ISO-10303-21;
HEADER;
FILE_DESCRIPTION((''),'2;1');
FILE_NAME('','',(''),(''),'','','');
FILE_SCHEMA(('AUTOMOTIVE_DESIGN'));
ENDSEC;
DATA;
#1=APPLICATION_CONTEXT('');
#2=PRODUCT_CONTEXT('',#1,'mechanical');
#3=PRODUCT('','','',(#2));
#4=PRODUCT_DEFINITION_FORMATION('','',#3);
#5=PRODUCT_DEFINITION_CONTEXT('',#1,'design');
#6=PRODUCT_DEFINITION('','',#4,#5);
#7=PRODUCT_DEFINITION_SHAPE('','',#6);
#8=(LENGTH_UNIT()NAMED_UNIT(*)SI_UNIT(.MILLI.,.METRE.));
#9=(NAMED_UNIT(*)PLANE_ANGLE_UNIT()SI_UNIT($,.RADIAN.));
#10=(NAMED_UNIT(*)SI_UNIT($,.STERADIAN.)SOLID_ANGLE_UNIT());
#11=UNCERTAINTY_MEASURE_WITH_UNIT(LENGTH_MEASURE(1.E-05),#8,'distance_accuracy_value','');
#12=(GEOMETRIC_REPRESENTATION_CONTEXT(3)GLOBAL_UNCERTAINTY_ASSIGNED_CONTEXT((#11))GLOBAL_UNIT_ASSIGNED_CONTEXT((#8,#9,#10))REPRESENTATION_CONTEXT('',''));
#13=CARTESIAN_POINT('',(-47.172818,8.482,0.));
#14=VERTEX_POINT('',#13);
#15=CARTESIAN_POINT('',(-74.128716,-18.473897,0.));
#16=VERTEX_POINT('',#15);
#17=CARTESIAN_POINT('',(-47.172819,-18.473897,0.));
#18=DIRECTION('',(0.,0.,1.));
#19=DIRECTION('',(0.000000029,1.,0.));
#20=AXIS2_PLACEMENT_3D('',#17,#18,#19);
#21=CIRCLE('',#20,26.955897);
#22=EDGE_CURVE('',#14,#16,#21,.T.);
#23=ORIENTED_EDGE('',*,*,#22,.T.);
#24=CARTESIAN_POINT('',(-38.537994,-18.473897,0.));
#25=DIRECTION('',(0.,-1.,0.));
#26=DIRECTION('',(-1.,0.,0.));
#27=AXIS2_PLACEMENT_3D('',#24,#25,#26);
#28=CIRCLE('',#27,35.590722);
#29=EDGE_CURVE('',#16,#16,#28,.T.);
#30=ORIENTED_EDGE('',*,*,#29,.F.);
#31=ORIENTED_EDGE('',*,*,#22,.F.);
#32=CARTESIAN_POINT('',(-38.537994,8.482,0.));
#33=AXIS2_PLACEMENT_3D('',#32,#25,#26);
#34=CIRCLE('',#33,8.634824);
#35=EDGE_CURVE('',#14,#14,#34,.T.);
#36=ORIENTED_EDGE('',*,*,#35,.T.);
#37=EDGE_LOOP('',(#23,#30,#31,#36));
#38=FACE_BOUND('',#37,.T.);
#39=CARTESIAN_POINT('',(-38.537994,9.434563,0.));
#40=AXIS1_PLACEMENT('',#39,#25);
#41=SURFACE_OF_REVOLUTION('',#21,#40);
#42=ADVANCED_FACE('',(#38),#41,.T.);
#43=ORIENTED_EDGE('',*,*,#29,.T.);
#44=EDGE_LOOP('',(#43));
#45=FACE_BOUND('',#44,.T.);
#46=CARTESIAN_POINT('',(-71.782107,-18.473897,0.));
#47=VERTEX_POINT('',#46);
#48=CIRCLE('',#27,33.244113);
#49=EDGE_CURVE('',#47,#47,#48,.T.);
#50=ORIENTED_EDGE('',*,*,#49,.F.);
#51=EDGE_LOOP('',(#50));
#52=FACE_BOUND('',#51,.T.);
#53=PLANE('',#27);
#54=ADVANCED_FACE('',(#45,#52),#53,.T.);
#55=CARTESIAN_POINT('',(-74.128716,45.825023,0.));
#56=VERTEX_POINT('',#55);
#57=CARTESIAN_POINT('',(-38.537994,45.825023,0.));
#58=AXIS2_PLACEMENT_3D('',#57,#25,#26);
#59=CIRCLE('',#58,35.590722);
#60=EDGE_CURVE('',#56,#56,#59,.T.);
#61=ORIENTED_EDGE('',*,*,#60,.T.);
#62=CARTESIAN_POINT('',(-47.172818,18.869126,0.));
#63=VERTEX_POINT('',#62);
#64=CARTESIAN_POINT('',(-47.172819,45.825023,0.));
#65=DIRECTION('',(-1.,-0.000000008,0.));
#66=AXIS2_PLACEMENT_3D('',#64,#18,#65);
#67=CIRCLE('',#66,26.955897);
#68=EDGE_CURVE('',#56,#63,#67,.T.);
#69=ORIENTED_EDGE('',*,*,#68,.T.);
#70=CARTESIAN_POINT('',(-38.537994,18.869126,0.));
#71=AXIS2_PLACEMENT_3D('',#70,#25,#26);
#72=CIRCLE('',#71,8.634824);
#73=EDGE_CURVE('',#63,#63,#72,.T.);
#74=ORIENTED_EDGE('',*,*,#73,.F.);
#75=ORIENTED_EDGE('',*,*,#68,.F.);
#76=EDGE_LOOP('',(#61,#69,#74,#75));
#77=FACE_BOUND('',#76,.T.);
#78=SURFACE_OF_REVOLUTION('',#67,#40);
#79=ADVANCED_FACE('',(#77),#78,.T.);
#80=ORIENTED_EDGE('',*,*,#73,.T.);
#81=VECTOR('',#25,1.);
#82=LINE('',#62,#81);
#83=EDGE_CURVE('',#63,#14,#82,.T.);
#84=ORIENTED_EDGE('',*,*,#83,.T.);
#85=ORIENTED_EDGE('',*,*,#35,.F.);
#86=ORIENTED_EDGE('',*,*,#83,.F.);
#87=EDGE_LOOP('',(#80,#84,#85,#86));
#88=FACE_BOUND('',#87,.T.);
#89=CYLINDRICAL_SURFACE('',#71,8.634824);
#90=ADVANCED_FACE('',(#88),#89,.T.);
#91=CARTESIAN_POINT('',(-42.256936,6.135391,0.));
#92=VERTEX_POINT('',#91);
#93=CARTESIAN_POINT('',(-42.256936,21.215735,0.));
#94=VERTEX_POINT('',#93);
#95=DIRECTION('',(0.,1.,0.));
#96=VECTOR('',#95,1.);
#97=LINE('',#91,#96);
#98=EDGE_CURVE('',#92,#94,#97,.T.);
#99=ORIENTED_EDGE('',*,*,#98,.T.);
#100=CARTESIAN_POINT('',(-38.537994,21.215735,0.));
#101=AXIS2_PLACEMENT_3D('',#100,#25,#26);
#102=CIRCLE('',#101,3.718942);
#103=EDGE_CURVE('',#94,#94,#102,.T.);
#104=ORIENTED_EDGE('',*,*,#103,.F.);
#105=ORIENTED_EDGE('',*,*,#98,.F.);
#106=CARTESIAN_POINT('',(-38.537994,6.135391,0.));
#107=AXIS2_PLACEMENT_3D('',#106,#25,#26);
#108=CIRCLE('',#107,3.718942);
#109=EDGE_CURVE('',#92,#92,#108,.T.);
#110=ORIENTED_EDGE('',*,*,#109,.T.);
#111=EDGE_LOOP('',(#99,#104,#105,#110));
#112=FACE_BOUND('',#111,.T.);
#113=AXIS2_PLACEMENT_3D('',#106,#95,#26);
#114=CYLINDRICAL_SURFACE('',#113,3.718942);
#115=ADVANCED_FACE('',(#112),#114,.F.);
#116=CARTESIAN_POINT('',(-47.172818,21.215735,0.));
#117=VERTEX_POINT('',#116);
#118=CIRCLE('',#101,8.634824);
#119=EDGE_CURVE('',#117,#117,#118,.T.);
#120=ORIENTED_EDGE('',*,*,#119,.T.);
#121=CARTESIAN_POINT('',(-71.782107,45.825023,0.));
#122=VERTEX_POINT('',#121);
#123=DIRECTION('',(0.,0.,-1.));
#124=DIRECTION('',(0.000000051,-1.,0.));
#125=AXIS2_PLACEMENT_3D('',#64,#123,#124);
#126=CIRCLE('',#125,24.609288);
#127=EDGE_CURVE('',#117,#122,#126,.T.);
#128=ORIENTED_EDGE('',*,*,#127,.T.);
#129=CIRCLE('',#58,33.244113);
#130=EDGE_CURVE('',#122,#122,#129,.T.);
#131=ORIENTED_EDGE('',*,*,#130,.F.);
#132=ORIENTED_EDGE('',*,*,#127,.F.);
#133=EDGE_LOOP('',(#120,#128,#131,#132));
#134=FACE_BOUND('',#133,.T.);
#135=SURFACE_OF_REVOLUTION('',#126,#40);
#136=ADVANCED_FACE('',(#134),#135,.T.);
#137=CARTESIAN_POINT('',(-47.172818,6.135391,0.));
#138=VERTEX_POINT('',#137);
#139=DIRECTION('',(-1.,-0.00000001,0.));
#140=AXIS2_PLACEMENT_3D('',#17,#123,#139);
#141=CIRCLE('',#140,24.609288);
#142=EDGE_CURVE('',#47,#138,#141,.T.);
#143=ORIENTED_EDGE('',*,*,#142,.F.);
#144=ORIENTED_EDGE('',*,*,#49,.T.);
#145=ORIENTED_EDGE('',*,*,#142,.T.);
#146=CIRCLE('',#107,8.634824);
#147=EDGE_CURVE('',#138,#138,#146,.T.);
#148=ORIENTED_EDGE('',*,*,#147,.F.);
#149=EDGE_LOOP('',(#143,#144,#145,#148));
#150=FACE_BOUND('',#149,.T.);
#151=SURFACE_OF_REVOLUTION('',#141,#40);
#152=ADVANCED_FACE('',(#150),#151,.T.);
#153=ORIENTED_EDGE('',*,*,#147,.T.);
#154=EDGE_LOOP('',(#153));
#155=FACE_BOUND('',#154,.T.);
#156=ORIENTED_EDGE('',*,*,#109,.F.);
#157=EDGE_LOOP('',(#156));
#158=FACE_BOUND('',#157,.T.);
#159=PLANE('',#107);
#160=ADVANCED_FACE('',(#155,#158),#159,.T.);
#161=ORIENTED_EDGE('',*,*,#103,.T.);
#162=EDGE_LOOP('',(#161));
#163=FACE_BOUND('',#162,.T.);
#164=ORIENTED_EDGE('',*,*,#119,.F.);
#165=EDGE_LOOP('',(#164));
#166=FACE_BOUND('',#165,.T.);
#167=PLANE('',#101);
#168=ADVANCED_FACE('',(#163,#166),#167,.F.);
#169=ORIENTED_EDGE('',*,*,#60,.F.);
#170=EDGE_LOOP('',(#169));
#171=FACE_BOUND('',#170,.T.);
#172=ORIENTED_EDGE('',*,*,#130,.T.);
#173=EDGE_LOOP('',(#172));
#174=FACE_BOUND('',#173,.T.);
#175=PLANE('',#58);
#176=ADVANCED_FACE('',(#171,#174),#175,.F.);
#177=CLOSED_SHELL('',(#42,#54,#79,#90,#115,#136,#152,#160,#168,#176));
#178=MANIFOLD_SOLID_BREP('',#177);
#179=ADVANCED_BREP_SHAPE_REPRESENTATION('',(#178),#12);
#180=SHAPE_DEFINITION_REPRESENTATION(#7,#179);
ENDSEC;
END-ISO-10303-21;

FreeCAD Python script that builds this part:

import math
import FreeCAD as App
import Part
import Sketcher

V = App.Vector
Q = App.Units.Quantity

doc = App.newDocument("Part")
body = doc.addObject("PartDesign::Body", "Body")

sketch1 = body.newObject("Sketcher::SketchObject", "Sketch")
sketch1.AttachmentSupport = (doc.getObject("XY_Plane"), [""])
sketch1.MapMode = "FlatFace"
sketch1.addGeometry([
    Part.ArcOfCircle(Part.Circle(V(-47.2, 45.8, 0), V(0, 0, 1), 24.6), math.radians(180), math.radians(270)),
    Part.LineSegment(V(-71.8, 45.8, 0), V(-74.1, 45.8, 0)),
    Part.ArcOfCircle(Part.Circle(V(-47.2, 45.8, 0), V(0, 0, 1), 27), math.radians(-180), math.radians(-90)),
    Part.LineSegment(V(-47.2, 18.9, 0), V(-47.2, 8.5, 0)),
    Part.ArcOfCircle(Part.Circle(V(-47.2, -18.5, 0), V(0, 0, 1), 27), math.radians(90), math.radians(180)),
    Part.LineSegment(V(-74.1, -18.5, 0), V(-71.8, -18.5, 0)),
    Part.ArcOfCircle(Part.Circle(V(-47.2, -18.5, 0), V(0, 0, 1), 24.6), math.radians(90), math.radians(180)),
    Part.LineSegment(V(-47.2, 6.1, 0), V(-42.3, 6.1, 0)),
    Part.LineSegment(V(-42.3, 6.1, 0), V(-42.3, 21.2, 0)),
    Part.LineSegment(V(-42.3, 21.2, 0), V(-47.2, 21.2, 0)),
], False)
sketch1.addGeometry(Part.LineSegment(V(-38.5, 45.8, 0), V(-38.5, -18.5, 0)), True)
sketch1.addConstraint([
    Sketcher.Constraint("Coincident", 0, 1, 1, 1),
    Sketcher.Constraint("Coincident", 1, 2, 2, 1),
    Sketcher.Constraint("Coincident", 2, 2, 3, 1),
    Sketcher.Constraint("Coincident", 3, 2, 4, 1),
    Sketcher.Constraint("Coincident", 4, 2, 5, 1),
    Sketcher.Constraint("Coincident", 5, 2, 6, 2),
    Sketcher.Constraint("Tangent", 6, 1, 7, 1),
    Sketcher.Constraint("Coincident", 7, 2, 8, 1),
    Sketcher.Constraint("Coincident", 8, 2, 9, 1),
    Sketcher.Constraint("Tangent", 9, 2, 0, 2),
    Sketcher.Constraint("Horizontal", 1),
    Sketcher.Constraint("Vertical", 3),
    Sketcher.Constraint("Horizontal", 5),
    Sketcher.Constraint("Horizontal", 7),
    Sketcher.Constraint("Vertical", 8),
    Sketcher.Constraint("Horizontal", 9),
    Sketcher.Constraint("Vertical", 10),
    Sketcher.Constraint("Coincident", 2, 3, 0, 3),
    Sketcher.Constraint("Coincident", 6, 3, 4, 3),
    Sketcher.Constraint("Equal", 2, 4),
    Sketcher.Constraint("Equal", 0, 6),
    Sketcher.Constraint("Horizontal", 2, 3, 0, 1),
    Sketcher.Constraint("Horizontal", 6, 3, 4, 2),
    Sketcher.Constraint("Horizontal", 1, 2, 10, 1),
    Sketcher.Constraint("Horizontal", 5, 2, 10, 2),
    Sketcher.Constraint("Vertical", 2, 3, 4, 3),
    Sketcher.Constraint("Vertical", 6, 3, 2, 2),
    Sketcher.Constraint("DistanceY", -1, 1, 3, 2, Q("8.482 mm")),
    Sketcher.Constraint("Radius", 0, Q("24.609288 mm")),
    Sketcher.Constraint("Radius", 2, Q("26.955897 mm")),
    Sketcher.Constraint("DistanceX", 7, 1, 7, 2, Q("4.915882 mm")),
    Sketcher.Constraint("DistanceY", 10, 2, 10, 1, Q("64.29892 mm")),
    Sketcher.Constraint("DistanceX", 0, 3, -1, 1, Q("47.172819 mm")),
    Sketcher.Constraint("DistanceX", 10, 1, -1, 1, Q("38.537994 mm")),
])
revolution = body.newObject("PartDesign::Revolution", "Revolution")
revolution.Profile = sketch1
revolution.ReferenceAxis = (sketch1, ["Axis0"])
revolution.Angle = 360

doc.recompute()
